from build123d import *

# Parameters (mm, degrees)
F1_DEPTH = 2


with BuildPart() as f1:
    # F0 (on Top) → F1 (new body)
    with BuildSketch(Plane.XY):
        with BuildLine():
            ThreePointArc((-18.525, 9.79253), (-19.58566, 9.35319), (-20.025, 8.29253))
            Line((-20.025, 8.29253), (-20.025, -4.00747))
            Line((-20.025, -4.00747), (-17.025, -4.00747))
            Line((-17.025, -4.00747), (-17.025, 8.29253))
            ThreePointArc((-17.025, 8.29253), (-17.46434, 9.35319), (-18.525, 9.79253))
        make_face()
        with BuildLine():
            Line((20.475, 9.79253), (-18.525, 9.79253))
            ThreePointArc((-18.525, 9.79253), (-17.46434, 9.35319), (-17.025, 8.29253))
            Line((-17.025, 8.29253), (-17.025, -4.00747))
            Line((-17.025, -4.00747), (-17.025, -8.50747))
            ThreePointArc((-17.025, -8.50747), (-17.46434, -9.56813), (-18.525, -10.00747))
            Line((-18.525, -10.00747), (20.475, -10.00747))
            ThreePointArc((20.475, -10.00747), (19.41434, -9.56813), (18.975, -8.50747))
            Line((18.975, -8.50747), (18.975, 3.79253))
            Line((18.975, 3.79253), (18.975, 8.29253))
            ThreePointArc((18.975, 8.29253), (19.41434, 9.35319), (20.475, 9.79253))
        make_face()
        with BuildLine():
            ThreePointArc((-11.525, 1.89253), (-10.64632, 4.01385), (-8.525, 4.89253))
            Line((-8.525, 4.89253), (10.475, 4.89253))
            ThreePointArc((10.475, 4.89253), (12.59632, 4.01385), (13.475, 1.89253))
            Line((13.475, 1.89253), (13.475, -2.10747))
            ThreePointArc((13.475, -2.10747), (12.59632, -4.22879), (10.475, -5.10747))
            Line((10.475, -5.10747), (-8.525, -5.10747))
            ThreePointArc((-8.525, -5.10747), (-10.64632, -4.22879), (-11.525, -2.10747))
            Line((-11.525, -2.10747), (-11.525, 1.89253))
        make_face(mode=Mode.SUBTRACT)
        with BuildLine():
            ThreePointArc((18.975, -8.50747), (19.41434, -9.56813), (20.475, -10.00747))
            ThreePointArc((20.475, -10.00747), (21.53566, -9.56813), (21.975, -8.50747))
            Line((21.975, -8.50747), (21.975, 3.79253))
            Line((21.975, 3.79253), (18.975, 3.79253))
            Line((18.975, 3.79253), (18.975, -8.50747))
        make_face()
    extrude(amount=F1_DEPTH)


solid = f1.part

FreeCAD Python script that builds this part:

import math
import FreeCAD as App
import Part
import Sketcher

V = App.Vector

doc = App.newDocument("Part")
body = doc.addObject("PartDesign::Body", "Body")

sketch1 = body.newObject("Sketcher::SketchObject", "Sketch")
sketch1.AttachmentSupport = (doc.getObject("XY_Plane"), [""])
sketch1.MapMode = "FlatFace"
sketch1.addGeometry([
    Part.ArcOfCircle(Part.Circle(V(-18.5, 8.3, 0), V(0, 0, 1), 1.5), math.radians(90), math.radians(180)),
    Part.LineSegment(V(-20, 8.3, 0), V(-20, -4, 0)),
    Part.LineSegment(V(-20, -4, 0), V(-17, -4, 0)),
    Part.LineSegment(V(-17, -4, 0), V(-17, -8.5, 0)),
    Part.ArcOfCircle(Part.Circle(V(-18.5, -8.5, 0), V(0, 0, 1), 1.5), math.radians(-90), math.radians(0)),
    Part.LineSegment(V(-18.5, -10, 0), V(20.5, -10, 0)),
    Part.ArcOfCircle(Part.Circle(V(20.5, -8.5, 0), V(0, 0, 1), 1.5), math.radians(-90), math.radians(0)),
    Part.LineSegment(V(22, -8.5, 0), V(22, 3.8, 0)),
    Part.LineSegment(V(22, 3.8, 0), V(19, 3.8, 0)),
    Part.LineSegment(V(19, 3.8, 0), V(19, 8.3, 0)),
    Part.ArcOfCircle(Part.Circle(V(20.5, 8.3, 0), V(0, 0, 1), 1.5), math.radians(90), math.radians(180)),
    Part.LineSegment(V(20.5, 9.8, 0), V(-18.5, 9.8, 0)),
    Part.LineSegment(V(-11.5, -2.1, 0), V(-11.5, 1.9, 0)),
    Part.ArcOfCircle(Part.Circle(V(-8.5, 1.9, 0), V(0, 0, 1), 3), math.radians(90), math.radians(180)),
    Part.LineSegment(V(-8.5, 4.9, 0), V(10.5, 4.9, 0)),
    Part.ArcOfCircle(Part.Circle(V(10.5, 1.9, 0), V(0, 0, 1), 3), math.radians(0), math.radians(90)),
    Part.LineSegment(V(13.5, 1.9, 0), V(13.5, -2.1, 0)),
    Part.ArcOfCircle(Part.Circle(V(10.5, -2.1, 0), V(0, 0, 1), 3), math.radians(-90), math.radians(0)),
    Part.LineSegment(V(10.5, -5.1, 0), V(-8.5, -5.1, 0)),
    Part.ArcOfCircle(Part.Circle(V(-8.5, -2.1, 0), V(0, 0, 1), 3), math.radians(-180), math.radians(-90)),
], False)
sketch1.addConstraint([
    Sketcher.Constraint("Tangent", 0, 2, 1, 1),
    Sketcher.Constraint("Coincident", 1, 2, 2, 1),
    Sketcher.Constraint("Coincident", 2, 2, 3, 1),
    Sketcher.Constraint("Tangent", 3, 2, 4, 2),
    Sketcher.Constraint("Tangent", 4, 1, 5, 1),
    Sketcher.Constraint("Tangent", 5, 2, 6, 1),
    Sketcher.Constraint("Tangent", 6, 2, 7, 1),
    Sketcher.Constraint("Coincident", 7, 2, 8, 1),
    Sketcher.Constraint("Coincident", 8, 2, 9, 1),
    Sketcher.Constraint("Tangent", 9, 2, 10, 2),
    Sketcher.Constraint("Tangent", 10, 1, 11, 1),
    Sketcher.Constraint("Tangent", 11, 2, 0, 1),
    Sketcher.Constraint("Tangent", 12, 2, 13, 2),
    Sketcher.Constraint("Tangent", 13, 1, 14, 1),
    Sketcher.Constraint("Tangent", 14, 2, 15, 2),
    Sketcher.Constraint("Tangent", 15, 1, 16, 1),
    Sketcher.Constraint("Tangent", 16, 2, 17, 2),
    Sketcher.Constraint("Tangent", 17, 1, 18, 1),
    Sketcher.Constraint("Tangent", 18, 2, 19, 2),
    Sketcher.Constraint("Tangent", 19, 1, 12, 1),
    Sketcher.Constraint("Vertical", 1),
    Sketcher.Constraint("Horizontal", 2),
    Sketcher.Constraint("Vertical", 3),
    Sketcher.Constraint("Horizontal", 5),
    Sketcher.Constraint("Vertical", 7),
    Sketcher.Constraint("Horizontal", 8),
    Sketcher.Constraint("Vertical", 9),
    Sketcher.Constraint("Horizontal", 11),
    Sketcher.Constraint("Vertical", 12),
    Sketcher.Constraint("Horizontal", 14),
    Sketcher.Constraint("Vertical", 16),
    Sketcher.Constraint("Horizontal", 18),
    Sketcher.Constraint("Equal", 0, 4),
    Sketcher.Constraint("Equal", 4, 6),
    Sketcher.Constraint("Equal", 6, 10),
    Sketcher.Constraint("Equal", 13, 15),
    Sketcher.Constraint("Equal", 15, 17),
    Sketcher.Constraint("Equal", 17, 19),
    Sketcher.Constraint("Vertical", 0, 3, 4, 3),
    Sketcher.Constraint("Vertical", 6, 3, 10, 3),
    Sketcher.Constraint("Equal", 1, 7),
    Sketcher.Constraint("Radius", 13, 3.000001),
    Sketcher.Constraint("Radius", 0, 1.500001),
    Sketcher.Constraint("DistanceX", 5, 1, 5, 2, 39.0),
    Sketcher.Constraint("DistanceX", 14, 1, 14, 2, 19.0),
    Sketcher.Constraint("DistanceY", 12, 1, 12, 2, 4.0),
    Sketcher.Constraint("DistanceY", 1, 2, 1, 1, 12.3),
    Sketcher.Constraint("DistanceY", 3, 2, 3, 1, 4.5),
    Sketcher.Constraint("DistanceX", 0, 3, 13, 3, 10.000001),
    Sketcher.Constraint("DistanceY", 13, 3, 0, 3, 6.400001),
    Sketcher.Constraint("DistanceX", 0, 3, -1, 1, 18.524999),
    Sketcher.Constraint("DistanceY", -1, 1, 0, 3, 8.292529),
])
pad1 = body.newObject("PartDesign::Pad", "Pad")
pad1.Profile = sketch1
pad1.Length = 2

doc.recompute()
